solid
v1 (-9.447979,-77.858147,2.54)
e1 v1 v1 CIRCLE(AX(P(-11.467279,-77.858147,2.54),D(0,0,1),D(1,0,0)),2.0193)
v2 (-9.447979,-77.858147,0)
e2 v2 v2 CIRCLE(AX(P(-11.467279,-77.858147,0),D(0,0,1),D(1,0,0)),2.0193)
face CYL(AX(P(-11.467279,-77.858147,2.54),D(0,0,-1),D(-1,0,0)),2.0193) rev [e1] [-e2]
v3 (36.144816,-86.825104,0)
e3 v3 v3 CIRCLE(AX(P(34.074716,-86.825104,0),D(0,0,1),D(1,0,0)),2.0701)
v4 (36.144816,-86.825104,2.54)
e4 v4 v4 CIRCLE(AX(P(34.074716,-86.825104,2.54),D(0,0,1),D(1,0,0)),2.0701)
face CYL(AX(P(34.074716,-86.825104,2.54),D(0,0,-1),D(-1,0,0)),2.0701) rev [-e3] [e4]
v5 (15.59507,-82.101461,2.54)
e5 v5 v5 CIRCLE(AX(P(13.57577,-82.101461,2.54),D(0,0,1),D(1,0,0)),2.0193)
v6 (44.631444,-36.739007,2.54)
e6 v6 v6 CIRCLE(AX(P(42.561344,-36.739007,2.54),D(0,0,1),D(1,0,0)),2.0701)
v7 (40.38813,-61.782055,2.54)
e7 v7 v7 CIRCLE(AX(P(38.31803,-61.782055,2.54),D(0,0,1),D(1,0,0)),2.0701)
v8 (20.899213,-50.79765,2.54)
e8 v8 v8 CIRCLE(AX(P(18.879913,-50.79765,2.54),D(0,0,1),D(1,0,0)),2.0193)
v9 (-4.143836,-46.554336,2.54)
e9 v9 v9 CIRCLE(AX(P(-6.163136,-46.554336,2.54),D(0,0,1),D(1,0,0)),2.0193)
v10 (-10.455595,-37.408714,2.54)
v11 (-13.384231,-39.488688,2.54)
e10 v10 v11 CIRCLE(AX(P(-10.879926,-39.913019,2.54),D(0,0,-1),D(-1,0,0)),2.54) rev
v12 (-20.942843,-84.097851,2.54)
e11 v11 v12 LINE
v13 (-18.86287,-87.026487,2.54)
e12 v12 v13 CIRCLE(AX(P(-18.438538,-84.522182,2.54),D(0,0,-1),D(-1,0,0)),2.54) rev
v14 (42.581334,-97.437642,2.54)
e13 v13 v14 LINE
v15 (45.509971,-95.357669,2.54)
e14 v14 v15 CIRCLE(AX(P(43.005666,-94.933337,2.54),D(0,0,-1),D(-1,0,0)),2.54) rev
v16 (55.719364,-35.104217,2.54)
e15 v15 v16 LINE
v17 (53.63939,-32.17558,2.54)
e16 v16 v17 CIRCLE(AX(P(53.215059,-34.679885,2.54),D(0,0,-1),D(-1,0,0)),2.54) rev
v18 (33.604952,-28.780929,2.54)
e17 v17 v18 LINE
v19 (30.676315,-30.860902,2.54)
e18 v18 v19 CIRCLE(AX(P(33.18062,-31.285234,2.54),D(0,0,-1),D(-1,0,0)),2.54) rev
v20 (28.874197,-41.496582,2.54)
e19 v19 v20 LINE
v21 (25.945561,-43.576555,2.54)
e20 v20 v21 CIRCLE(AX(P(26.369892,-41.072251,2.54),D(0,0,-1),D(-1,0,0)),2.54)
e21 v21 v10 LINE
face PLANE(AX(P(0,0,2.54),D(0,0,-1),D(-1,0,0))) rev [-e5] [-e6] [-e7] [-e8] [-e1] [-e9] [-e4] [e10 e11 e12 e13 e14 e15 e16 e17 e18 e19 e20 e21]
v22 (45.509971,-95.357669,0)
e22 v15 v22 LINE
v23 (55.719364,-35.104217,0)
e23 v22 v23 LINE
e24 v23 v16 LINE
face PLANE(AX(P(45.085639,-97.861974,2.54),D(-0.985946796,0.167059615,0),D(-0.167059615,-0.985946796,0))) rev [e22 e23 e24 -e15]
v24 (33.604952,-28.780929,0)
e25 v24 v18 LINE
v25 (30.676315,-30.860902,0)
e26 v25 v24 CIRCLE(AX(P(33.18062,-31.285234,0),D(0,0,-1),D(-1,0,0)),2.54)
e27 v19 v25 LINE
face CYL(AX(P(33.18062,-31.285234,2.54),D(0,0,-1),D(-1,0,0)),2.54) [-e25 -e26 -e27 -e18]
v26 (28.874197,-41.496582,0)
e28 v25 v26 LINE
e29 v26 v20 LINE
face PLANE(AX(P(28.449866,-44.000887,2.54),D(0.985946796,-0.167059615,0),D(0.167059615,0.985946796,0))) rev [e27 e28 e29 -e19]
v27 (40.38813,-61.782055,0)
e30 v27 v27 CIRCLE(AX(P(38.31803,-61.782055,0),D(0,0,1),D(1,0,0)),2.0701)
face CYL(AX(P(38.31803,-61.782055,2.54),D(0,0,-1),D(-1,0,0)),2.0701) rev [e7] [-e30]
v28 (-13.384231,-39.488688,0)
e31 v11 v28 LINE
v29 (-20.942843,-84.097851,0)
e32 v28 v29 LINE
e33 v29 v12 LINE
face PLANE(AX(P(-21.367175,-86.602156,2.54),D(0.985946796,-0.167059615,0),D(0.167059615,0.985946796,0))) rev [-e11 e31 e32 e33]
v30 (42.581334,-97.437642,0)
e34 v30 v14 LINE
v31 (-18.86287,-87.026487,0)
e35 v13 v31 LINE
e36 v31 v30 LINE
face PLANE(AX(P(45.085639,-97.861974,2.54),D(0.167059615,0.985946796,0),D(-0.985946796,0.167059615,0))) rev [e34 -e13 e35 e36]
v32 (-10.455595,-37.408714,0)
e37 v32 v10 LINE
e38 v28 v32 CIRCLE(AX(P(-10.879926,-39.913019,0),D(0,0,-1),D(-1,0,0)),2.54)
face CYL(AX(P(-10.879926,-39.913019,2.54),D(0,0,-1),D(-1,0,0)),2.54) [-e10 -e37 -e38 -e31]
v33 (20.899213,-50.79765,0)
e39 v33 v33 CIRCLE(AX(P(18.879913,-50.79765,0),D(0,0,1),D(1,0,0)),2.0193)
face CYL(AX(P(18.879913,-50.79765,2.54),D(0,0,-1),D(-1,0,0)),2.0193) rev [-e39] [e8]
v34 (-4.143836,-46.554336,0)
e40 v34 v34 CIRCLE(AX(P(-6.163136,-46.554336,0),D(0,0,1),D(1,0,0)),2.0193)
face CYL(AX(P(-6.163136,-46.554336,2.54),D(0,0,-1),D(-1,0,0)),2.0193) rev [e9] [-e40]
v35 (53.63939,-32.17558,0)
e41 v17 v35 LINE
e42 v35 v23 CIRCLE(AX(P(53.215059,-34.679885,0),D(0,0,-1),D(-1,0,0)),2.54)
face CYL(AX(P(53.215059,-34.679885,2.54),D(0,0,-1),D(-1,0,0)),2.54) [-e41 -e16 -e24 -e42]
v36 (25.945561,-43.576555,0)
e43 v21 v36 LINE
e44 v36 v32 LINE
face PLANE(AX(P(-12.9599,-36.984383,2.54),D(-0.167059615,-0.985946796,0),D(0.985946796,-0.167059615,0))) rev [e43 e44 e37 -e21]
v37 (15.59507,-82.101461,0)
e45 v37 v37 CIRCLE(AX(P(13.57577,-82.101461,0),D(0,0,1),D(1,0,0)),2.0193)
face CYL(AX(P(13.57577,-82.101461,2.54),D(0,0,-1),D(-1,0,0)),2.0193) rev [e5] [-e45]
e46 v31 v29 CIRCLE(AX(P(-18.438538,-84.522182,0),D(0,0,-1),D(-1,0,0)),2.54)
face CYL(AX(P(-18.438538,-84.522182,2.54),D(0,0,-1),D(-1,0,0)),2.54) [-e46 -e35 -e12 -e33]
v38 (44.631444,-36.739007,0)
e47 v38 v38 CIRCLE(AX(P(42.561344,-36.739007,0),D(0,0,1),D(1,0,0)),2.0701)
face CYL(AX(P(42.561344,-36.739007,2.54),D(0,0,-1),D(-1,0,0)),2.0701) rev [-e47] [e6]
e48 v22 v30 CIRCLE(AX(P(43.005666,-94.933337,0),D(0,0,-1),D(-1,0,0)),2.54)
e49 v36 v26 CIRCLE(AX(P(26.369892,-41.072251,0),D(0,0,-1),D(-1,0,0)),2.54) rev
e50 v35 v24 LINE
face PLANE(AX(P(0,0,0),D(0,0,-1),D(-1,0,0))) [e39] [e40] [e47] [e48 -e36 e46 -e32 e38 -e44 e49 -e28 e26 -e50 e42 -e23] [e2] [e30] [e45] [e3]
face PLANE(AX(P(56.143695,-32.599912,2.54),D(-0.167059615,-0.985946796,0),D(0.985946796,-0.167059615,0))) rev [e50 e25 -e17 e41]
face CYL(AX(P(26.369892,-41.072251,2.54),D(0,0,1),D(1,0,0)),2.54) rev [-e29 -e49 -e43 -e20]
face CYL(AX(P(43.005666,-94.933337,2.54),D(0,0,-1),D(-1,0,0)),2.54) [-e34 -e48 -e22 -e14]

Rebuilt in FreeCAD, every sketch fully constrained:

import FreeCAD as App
import Part
import Sketcher
from FreeCAD import Vector
Q = App.Units.Quantity


def edges_at(feature, points):
    """Names of the edges that pass closest to the given points."""
    edges = feature.Shape.Edges
    near = lambda p: min(range(len(edges)), key=lambda i: edges[i].distToShape(Part.Vertex(*p))[0])
    return sorted({f"Edge{near(p) + 1}" for p in points})


def add_polygon(sketch, points):
    """Adds a closed chain of lines whose ends are joined by coincident constraints."""
    first, n = sketch.GeometryCount, len(points)
    for a, b in zip(points, points[1:] + points[:1]):
        sketch.addGeometry(Part.LineSegment(App.Vector(*a, 0), App.Vector(*b, 0)), False)
    for i in range(n):
        sketch.addConstraint(Sketcher.Constraint("Coincident", first + i, 2, first + (i + 1) % n, 1))

doc = App.newDocument("Part")
params = doc.addObject("Spreadsheet::Sheet", "Params")
for row, (alias, value) in enumerate([
    ("sketch1_length", "1 in"),
    ("sketch1_diameter", "0.163 in"),
    ("sketch1_diameter2", "0.159 in"),
    ("pad1_length", "0.1 in"),
    ("fillet_radius", "0.1 in"),
], start=1):
    params.set(f"A{row}", alias)
    params.set(f"B{row}", "=" + value)
    params.setAlias(f"B{row}", alias)

body = doc.addObject("PartDesign::Body", "Body")

sketch1 = body.newObject("Sketcher::SketchObject", "Sketch")
sketch1.AttachmentSupport = (doc.getObject("XY_Plane"), [""])
sketch1.MapMode = "FlatFace"
add_polygon(sketch1, [(28.4, -44), (-13, -37), (-21.4, -86.6), (45.1, -97.9), (56.1, -32.6), (31.1, -28.4)])
sketch1.addGeometry(Part.Circle(Vector(34.1, -86.8, 0), Vector(0, 0, 1), 2.1), False)
sketch1.addGeometry(Part.Circle(Vector(13.6, -82.1, 0), Vector(0, 0, 1), 2), False)
sketch1.addGeometry(Part.Circle(Vector(-11.5, -77.9, 0), Vector(0, 0, 1), 2), False)
sketch1.addGeometry(Part.Circle(Vector(38.3, -61.8, 0), Vector(0, 0, 1), 2.1), False)
sketch1.addGeometry(Part.Circle(Vector(18.9, -50.8, 0), Vector(0, 0, 1), 2), False)
sketch1.addGeometry(Part.Circle(Vector(42.6, -36.7, 0), Vector(0, 0, 1), 2.1), False)
sketch1.addGeometry(Part.Circle(Vector(-6.2, -46.6, 0), Vector(0, 0, 1), 2), False)
sketch1.addConstraint([
    Sketcher.Constraint("Equal", 7, 8),
    Sketcher.Constraint("Equal", 6, 9),
    Sketcher.Constraint("Equal", 8, 10),
    Sketcher.Constraint("Equal", 9, 11),
    Sketcher.Constraint("Equal", 10, 12),
    Sketcher.Constraint("Perpendicular", 0, 1),
    Sketcher.Constraint("Perpendicular", 1, 2),
    Sketcher.Constraint("Perpendicular", 2, 3),
    Sketcher.Constraint("Perpendicular", 3, 4),
    Sketcher.Constraint("Perpendicular", 4, 5),
    Sketcher.Constraint("Distance", 4, Q("1 in")),
    Sketcher.Constraint("Diameter", 6, Q("0.163 in")),
    Sketcher.Constraint("Diameter", 7, Q("0.159 in")),
    Sketcher.Constraint("Distance", 0, 42.0),
    Sketcher.Constraint("Distance", 1, 50.325),
    Sketcher.Constraint("DistanceX", 0, 2, -1, 1, 12.9599),
    Sketcher.Constraint("DistanceX", -1, 1, 7, 3, 13.57577),
    Sketcher.Constraint("DistanceY", 7, 3, -1, 1, 82.101461),
    Sketcher.Constraint("DistanceX", 8, 3, -1, 1, 11.467279),
    Sketcher.Constraint("DistanceX", -1, 1, 9, 3, 38.31803),
    Sketcher.Constraint("DistanceY", 10, 3, -1, 1, 50.79765),
    Sketcher.Constraint("DistanceX", -1, 1, 2, 2, 45.085639),
    Sketcher.Constraint("DistanceY", 3, 2, -1, 1, 32.599912),
    Sketcher.Constraint("DistanceY", 6, 3, 9, 3, 25.043049),
    Sketcher.Constraint("DistanceY", 8, 3, 9, 3, 16.076092),
    Sketcher.Constraint("DistanceX", 8, 3, 10, 3, 30.347191),
    Sketcher.Constraint("DistanceY", 9, 3, 11, 3, 25.043049),
    Sketcher.Constraint("DistanceX", 10, 3, 11, 3, 23.681432),
    Sketcher.Constraint("DistanceX", 6, 3, 11, 3, 8.486628),
    Sketcher.Constraint("DistanceX", 12, 3, 10, 3, 25.043049),
    Sketcher.Constraint("DistanceY", 8, 3, 12, 3, 31.303811),
    Sketcher.Constraint("DistanceY", 7, 3, 0, 2, 45.117078),
    Sketcher.Constraint("DistanceY", 1, 2, 8, 3, 8.744009),
])
sketch1.setExpression("Constraints[16]", "Params.sketch1_length")
sketch1.setExpression("Constraints[17]", "Params.sketch1_diameter")
sketch1.setExpression("Constraints[18]", "Params.sketch1_diameter2")
pad1 = body.newObject("PartDesign::Pad", "Pad")
pad1.Profile = sketch1
pad1.setExpression("Length", "Params.pad1_length")
doc.recompute()

fillet = body.newObject("PartDesign::Fillet", "Fillet")
fillet.Base = (pad1, edges_at(pad1, [
    (-21.367, -86.602, 1.27),
    (-12.96, -36.984, 1.27),
    (28.45, -44.001, 1.27),
    (31.101, -28.357, 1.27),
    (56.144, -32.6, 1.27),
    (45.086, -97.862, 1.27),
]))
fillet.setExpression("Radius", "Params.fillet_radius")

doc.recompute()
